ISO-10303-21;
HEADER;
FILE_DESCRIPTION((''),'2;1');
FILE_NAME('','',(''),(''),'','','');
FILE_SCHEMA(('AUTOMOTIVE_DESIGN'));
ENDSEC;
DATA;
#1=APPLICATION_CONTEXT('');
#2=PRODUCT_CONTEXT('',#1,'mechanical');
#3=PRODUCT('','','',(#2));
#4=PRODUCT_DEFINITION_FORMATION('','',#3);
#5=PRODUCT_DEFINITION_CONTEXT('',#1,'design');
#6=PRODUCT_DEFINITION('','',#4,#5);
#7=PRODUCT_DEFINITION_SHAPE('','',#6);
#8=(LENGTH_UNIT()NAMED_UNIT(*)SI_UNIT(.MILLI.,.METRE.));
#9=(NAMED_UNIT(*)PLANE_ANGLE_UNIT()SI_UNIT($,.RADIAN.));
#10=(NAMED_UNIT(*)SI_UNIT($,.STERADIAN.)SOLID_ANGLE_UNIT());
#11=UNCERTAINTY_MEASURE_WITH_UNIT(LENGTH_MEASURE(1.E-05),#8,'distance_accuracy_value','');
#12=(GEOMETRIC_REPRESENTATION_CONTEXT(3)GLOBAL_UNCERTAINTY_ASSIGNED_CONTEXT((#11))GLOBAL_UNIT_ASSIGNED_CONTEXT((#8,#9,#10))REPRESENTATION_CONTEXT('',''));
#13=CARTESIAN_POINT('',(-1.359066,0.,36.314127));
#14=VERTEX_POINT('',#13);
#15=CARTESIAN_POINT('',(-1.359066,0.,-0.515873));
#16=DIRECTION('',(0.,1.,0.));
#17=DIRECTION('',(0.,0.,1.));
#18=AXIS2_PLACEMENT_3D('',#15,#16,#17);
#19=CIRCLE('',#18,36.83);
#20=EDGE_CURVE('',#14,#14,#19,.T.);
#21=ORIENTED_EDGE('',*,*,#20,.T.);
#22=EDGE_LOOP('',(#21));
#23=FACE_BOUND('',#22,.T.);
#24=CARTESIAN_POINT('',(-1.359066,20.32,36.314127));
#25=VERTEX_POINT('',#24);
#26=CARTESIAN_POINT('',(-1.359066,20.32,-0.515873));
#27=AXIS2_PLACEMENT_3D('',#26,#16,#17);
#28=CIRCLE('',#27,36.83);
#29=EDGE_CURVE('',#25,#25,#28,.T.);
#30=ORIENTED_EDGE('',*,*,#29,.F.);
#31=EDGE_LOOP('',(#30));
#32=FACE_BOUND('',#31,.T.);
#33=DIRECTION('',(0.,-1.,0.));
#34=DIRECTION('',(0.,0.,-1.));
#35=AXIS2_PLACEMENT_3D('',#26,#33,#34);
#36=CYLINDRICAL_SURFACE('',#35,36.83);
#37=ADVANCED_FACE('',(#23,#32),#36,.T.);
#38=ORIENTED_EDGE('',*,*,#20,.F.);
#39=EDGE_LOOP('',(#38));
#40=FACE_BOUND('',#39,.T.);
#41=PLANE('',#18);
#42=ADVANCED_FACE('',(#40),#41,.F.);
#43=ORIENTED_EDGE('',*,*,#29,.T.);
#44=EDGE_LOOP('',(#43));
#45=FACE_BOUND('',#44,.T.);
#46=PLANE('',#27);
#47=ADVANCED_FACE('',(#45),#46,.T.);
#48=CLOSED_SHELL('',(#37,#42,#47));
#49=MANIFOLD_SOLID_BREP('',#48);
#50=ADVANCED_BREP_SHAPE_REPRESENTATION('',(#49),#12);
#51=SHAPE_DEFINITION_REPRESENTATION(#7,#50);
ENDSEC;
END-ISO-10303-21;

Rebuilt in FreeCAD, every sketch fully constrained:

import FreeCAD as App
import Part
import Sketcher
from FreeCAD import Vector
Q = App.Units.Quantity

doc = App.newDocument("Part")
body = doc.addObject("PartDesign::Body", "Body")

sketch1 = body.newObject("Sketcher::SketchObject", "Sketch")
sketch1.AttachmentSupport = (doc.getObject("XZ_Plane"), [""])
sketch1.MapMode = "FlatFace"
sketch1.addGeometry(Part.Circle(Vector(-1.359066, -0.515873, 0), Vector(0, 0, 1), 36.83), False)
sketch1.addConstraint(Sketcher.Constraint("Diameter", 0, Q("2.9 in")))
sketch1.addConstraint(Sketcher.Constraint("DistanceX", 0, 3, -1, 1, 1.359066))
sketch1.addConstraint(Sketcher.Constraint("DistanceY", 0, 3, -1, 1, 0.515873))
pad1 = body.newObject("PartDesign::Pad", "Pad")
pad1.Profile = sketch1
pad1.Length = Q("0.8 in")
pad1.Reversed = True

doc.recompute()
